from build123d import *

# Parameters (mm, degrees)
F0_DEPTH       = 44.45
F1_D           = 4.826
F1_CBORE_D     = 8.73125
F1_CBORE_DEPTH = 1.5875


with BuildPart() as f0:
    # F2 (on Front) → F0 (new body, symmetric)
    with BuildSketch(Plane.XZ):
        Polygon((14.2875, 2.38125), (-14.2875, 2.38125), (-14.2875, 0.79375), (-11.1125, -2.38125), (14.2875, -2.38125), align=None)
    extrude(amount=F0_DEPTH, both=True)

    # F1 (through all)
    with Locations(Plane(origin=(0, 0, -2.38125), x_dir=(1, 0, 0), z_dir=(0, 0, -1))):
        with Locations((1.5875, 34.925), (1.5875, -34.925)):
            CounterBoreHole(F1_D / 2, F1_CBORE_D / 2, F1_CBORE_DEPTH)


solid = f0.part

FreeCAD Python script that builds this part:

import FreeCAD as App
import Part
import Sketcher

V = App.Vector
Q = App.Units.Quantity


def add_polygon(sketch, points):
    """Adds a closed chain of lines whose ends are joined by coincident constraints."""
    first, n = sketch.GeometryCount, len(points)
    for a, b in zip(points, points[1:] + points[:1]):
        sketch.addGeometry(Part.LineSegment(App.Vector(*a, 0), App.Vector(*b, 0)), False)
    for i in range(n):
        sketch.addConstraint(Sketcher.Constraint("Coincident", first + i, 2, first + (i + 1) % n, 1))

doc = App.newDocument("Part")
body = doc.addObject("PartDesign::Body", "Body")

# Sketch on XZ plane
sketch1 = body.newObject("Sketcher::SketchObject", "Sketch")
sketch1.AttachmentSupport = (doc.getObject("XZ_Plane"), [""])
sketch1.MapMode = "FlatFace"
add_polygon(sketch1, [(14.3, 2.4), (-14.3, 2.4), (-14.3, 0.8), (-11.1, -2.4), (14.3, -2.4)])  # lines 0-4
sketch1.addConstraint(Sketcher.Constraint("Horizontal", 0))
sketch1.addConstraint(Sketcher.Constraint("Vertical", 1))
sketch1.addConstraint(Sketcher.Constraint("Horizontal", 3))
sketch1.addConstraint(Sketcher.Constraint("Vertical", 4))
sketch1.addConstraint(Sketcher.Constraint("Symmetric", 0, 2, 3, 2, -1, 1))
sketch1.addConstraint(Sketcher.Constraint("DistanceX", 3, 1, 3, 2, Q("1 in")))
sketch1.addConstraint(Sketcher.Constraint("Angle", 2, Q("-45 deg")))
sketch1.addConstraint(Sketcher.Constraint("DistanceX", 0, 2, 0, 1, Q("1.125 in")))
sketch1.addConstraint(Sketcher.Constraint("DistanceY", 1, 2, 1, 1, Q("0.0625 in")))
pad1 = body.newObject("PartDesign::Pad", "Pad")
pad1.Profile = sketch1
pad1.Length = Q("3.5 in")
pad1.Midplane = True

# Sketch on XY plane
sketch2 = body.newObject("Sketcher::SketchObject", "Sketch001")
sketch2.AttachmentSupport = (doc.getObject("XY_Plane"), [""])
sketch2.MapMode = "FlatFace"
sketch2.AttachmentOffset = App.Placement(V(0, 0, -0.09375 * 25.4), App.Rotation())
sketch2.addGeometry(Part.Circle(V(1.6, -34.9, 0), V(0, 0, 1), 2.4), False)
sketch2.addGeometry(Part.Circle(V(1.6, 34.9, 0), V(0, 0, 1), 2.4), False)
sketch2.addConstraint(Sketcher.Constraint("Equal", 0, 1))
sketch2.addConstraint(Sketcher.Constraint("Symmetric", 0, 3, 1, 3, -1))
sketch2.addConstraint(Sketcher.Constraint("Diameter", 0, Q("0.19 in")))
sketch2.addConstraint(Sketcher.Constraint("DistanceY", 0, 3, 1, 3, Q("2.75 in")))
sketch2.addConstraint(Sketcher.Constraint("DistanceX", -1, 1, 0, 3, Q("0.0625 in")))
doc.recompute()
hole = body.newObject("PartDesign::Hole", "Hole")
hole.Profile = sketch2
hole.ThreadType = "None"
hole.Diameter = Q("0.19 in")
hole.DepthType = "ThroughAll"
hole.HoleCutType = "Counterbore"
hole.HoleCutDiameter = Q("0.34375 in")
hole.HoleCutDepth = Q("0.0625 in")
hole.Reversed = True

doc.recompute()
